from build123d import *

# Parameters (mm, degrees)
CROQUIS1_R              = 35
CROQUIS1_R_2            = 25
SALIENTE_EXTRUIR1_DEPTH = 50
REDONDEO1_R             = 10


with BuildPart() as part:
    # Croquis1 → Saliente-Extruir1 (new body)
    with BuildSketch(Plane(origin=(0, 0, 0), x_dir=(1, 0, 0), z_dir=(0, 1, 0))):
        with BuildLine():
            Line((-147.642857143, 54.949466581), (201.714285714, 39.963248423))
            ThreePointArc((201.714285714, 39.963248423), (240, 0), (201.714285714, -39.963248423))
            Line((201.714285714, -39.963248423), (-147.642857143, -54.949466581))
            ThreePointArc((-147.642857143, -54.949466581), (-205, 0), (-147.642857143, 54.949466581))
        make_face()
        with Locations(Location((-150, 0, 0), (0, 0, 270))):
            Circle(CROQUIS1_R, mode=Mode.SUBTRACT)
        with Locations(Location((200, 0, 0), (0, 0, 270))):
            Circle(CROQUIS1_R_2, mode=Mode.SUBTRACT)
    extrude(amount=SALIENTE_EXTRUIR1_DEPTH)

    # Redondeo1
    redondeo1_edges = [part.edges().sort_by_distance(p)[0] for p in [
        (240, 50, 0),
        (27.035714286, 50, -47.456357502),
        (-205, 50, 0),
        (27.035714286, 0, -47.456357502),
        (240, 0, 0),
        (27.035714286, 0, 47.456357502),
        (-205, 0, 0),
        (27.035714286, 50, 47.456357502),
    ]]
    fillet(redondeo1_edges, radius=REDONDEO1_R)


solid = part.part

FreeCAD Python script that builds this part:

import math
import FreeCAD as App
import Part
import Sketcher
from FreeCAD import Vector


def edges_at(feature, points):
    """Names of the edges that pass closest to the given points."""
    edges = feature.Shape.Edges
    near = lambda p: min(range(len(edges)), key=lambda i: edges[i].distToShape(Part.Vertex(*p))[0])
    return sorted({f"Edge{near(p) + 1}" for p in points})

doc = App.newDocument("Part")
body = doc.addObject("PartDesign::Body", "Body")

sketch1 = body.newObject("Sketcher::SketchObject", "Sketch")
sketch1.AttachmentSupport = (doc.getObject("XZ_Plane"), [""])
sketch1.MapMode = "FlatFace"
sketch1.addGeometry(Part.LineSegment(Vector(202, -40, 0), Vector(-148, -55, 0)), False)
sketch1.addGeometry(Part.ArcOfCircle(Part.Circle(Vector(-150, 0, 0), Vector(0, 0, 1), 55), math.radians(88), math.radians(272)), False)
sketch1.addGeometry(Part.LineSegment(Vector(-148, 55, 0), Vector(202, 40, 0)), False)
sketch1.addGeometry(Part.ArcOfCircle(Part.Circle(Vector(200, 0, 0), Vector(0, 0, 1), 40), math.radians(-88), math.radians(88)), False)
sketch1.addGeometry(Part.Circle(Vector(200, 0, 0), Vector(0, 0, 1), 25), False)
sketch1.addGeometry(Part.Circle(Vector(-150, 0, 0), Vector(0, 0, 1), 35), False)
sketch1.addConstraint(Sketcher.Constraint("Tangent", 0, 2, 1, 2))
sketch1.addConstraint(Sketcher.Constraint("Tangent", 1, 1, 2, 1))
sketch1.addConstraint(Sketcher.Constraint("Tangent", 2, 2, 3, 2))
sketch1.addConstraint(Sketcher.Constraint("Tangent", 3, 1, 0, 1))
sketch1.addConstraint(Sketcher.Constraint("Coincident", 4, 3, 3, 3))
sketch1.addConstraint(Sketcher.Constraint("Coincident", 5, 3, 1, 3))
sketch1.addConstraint(Sketcher.Constraint("Symmetric", 0, 2, 1, 1, -1))
sketch1.addConstraint(Sketcher.Constraint("Diameter", 4, 50.0))
sketch1.addConstraint(Sketcher.Constraint("Diameter", 5, 70.0))
sketch1.addConstraint(Sketcher.Constraint("Radius", 1, 55.0))
sketch1.addConstraint(Sketcher.Constraint("Radius", 3, 40.0))
sketch1.addConstraint(Sketcher.Constraint("DistanceX", 1, 3, -1, 1, 150.0))
sketch1.addConstraint(Sketcher.Constraint("DistanceX", -1, 1, 3, 3, 200.0))
pad1 = body.newObject("PartDesign::Pad", "Pad")
pad1.Profile = sketch1
pad1.Length = 50
pad1.Reversed = True
doc.recompute()

fillet = body.newObject("PartDesign::Fillet", "Fillet")
fillet.Base = (pad1, edges_at(pad1, [
    (240, 50, 0),
    (27.036, 50, -47.456),
    (-205, 50, 0),
    (27.036, 0, -47.456),
    (240, 0, 0),
    (27.036, 0, 47.456),
    (-205, 0, 0),
    (27.036, 50, 47.456),
]))
fillet.Radius = 10

doc.recompute()
